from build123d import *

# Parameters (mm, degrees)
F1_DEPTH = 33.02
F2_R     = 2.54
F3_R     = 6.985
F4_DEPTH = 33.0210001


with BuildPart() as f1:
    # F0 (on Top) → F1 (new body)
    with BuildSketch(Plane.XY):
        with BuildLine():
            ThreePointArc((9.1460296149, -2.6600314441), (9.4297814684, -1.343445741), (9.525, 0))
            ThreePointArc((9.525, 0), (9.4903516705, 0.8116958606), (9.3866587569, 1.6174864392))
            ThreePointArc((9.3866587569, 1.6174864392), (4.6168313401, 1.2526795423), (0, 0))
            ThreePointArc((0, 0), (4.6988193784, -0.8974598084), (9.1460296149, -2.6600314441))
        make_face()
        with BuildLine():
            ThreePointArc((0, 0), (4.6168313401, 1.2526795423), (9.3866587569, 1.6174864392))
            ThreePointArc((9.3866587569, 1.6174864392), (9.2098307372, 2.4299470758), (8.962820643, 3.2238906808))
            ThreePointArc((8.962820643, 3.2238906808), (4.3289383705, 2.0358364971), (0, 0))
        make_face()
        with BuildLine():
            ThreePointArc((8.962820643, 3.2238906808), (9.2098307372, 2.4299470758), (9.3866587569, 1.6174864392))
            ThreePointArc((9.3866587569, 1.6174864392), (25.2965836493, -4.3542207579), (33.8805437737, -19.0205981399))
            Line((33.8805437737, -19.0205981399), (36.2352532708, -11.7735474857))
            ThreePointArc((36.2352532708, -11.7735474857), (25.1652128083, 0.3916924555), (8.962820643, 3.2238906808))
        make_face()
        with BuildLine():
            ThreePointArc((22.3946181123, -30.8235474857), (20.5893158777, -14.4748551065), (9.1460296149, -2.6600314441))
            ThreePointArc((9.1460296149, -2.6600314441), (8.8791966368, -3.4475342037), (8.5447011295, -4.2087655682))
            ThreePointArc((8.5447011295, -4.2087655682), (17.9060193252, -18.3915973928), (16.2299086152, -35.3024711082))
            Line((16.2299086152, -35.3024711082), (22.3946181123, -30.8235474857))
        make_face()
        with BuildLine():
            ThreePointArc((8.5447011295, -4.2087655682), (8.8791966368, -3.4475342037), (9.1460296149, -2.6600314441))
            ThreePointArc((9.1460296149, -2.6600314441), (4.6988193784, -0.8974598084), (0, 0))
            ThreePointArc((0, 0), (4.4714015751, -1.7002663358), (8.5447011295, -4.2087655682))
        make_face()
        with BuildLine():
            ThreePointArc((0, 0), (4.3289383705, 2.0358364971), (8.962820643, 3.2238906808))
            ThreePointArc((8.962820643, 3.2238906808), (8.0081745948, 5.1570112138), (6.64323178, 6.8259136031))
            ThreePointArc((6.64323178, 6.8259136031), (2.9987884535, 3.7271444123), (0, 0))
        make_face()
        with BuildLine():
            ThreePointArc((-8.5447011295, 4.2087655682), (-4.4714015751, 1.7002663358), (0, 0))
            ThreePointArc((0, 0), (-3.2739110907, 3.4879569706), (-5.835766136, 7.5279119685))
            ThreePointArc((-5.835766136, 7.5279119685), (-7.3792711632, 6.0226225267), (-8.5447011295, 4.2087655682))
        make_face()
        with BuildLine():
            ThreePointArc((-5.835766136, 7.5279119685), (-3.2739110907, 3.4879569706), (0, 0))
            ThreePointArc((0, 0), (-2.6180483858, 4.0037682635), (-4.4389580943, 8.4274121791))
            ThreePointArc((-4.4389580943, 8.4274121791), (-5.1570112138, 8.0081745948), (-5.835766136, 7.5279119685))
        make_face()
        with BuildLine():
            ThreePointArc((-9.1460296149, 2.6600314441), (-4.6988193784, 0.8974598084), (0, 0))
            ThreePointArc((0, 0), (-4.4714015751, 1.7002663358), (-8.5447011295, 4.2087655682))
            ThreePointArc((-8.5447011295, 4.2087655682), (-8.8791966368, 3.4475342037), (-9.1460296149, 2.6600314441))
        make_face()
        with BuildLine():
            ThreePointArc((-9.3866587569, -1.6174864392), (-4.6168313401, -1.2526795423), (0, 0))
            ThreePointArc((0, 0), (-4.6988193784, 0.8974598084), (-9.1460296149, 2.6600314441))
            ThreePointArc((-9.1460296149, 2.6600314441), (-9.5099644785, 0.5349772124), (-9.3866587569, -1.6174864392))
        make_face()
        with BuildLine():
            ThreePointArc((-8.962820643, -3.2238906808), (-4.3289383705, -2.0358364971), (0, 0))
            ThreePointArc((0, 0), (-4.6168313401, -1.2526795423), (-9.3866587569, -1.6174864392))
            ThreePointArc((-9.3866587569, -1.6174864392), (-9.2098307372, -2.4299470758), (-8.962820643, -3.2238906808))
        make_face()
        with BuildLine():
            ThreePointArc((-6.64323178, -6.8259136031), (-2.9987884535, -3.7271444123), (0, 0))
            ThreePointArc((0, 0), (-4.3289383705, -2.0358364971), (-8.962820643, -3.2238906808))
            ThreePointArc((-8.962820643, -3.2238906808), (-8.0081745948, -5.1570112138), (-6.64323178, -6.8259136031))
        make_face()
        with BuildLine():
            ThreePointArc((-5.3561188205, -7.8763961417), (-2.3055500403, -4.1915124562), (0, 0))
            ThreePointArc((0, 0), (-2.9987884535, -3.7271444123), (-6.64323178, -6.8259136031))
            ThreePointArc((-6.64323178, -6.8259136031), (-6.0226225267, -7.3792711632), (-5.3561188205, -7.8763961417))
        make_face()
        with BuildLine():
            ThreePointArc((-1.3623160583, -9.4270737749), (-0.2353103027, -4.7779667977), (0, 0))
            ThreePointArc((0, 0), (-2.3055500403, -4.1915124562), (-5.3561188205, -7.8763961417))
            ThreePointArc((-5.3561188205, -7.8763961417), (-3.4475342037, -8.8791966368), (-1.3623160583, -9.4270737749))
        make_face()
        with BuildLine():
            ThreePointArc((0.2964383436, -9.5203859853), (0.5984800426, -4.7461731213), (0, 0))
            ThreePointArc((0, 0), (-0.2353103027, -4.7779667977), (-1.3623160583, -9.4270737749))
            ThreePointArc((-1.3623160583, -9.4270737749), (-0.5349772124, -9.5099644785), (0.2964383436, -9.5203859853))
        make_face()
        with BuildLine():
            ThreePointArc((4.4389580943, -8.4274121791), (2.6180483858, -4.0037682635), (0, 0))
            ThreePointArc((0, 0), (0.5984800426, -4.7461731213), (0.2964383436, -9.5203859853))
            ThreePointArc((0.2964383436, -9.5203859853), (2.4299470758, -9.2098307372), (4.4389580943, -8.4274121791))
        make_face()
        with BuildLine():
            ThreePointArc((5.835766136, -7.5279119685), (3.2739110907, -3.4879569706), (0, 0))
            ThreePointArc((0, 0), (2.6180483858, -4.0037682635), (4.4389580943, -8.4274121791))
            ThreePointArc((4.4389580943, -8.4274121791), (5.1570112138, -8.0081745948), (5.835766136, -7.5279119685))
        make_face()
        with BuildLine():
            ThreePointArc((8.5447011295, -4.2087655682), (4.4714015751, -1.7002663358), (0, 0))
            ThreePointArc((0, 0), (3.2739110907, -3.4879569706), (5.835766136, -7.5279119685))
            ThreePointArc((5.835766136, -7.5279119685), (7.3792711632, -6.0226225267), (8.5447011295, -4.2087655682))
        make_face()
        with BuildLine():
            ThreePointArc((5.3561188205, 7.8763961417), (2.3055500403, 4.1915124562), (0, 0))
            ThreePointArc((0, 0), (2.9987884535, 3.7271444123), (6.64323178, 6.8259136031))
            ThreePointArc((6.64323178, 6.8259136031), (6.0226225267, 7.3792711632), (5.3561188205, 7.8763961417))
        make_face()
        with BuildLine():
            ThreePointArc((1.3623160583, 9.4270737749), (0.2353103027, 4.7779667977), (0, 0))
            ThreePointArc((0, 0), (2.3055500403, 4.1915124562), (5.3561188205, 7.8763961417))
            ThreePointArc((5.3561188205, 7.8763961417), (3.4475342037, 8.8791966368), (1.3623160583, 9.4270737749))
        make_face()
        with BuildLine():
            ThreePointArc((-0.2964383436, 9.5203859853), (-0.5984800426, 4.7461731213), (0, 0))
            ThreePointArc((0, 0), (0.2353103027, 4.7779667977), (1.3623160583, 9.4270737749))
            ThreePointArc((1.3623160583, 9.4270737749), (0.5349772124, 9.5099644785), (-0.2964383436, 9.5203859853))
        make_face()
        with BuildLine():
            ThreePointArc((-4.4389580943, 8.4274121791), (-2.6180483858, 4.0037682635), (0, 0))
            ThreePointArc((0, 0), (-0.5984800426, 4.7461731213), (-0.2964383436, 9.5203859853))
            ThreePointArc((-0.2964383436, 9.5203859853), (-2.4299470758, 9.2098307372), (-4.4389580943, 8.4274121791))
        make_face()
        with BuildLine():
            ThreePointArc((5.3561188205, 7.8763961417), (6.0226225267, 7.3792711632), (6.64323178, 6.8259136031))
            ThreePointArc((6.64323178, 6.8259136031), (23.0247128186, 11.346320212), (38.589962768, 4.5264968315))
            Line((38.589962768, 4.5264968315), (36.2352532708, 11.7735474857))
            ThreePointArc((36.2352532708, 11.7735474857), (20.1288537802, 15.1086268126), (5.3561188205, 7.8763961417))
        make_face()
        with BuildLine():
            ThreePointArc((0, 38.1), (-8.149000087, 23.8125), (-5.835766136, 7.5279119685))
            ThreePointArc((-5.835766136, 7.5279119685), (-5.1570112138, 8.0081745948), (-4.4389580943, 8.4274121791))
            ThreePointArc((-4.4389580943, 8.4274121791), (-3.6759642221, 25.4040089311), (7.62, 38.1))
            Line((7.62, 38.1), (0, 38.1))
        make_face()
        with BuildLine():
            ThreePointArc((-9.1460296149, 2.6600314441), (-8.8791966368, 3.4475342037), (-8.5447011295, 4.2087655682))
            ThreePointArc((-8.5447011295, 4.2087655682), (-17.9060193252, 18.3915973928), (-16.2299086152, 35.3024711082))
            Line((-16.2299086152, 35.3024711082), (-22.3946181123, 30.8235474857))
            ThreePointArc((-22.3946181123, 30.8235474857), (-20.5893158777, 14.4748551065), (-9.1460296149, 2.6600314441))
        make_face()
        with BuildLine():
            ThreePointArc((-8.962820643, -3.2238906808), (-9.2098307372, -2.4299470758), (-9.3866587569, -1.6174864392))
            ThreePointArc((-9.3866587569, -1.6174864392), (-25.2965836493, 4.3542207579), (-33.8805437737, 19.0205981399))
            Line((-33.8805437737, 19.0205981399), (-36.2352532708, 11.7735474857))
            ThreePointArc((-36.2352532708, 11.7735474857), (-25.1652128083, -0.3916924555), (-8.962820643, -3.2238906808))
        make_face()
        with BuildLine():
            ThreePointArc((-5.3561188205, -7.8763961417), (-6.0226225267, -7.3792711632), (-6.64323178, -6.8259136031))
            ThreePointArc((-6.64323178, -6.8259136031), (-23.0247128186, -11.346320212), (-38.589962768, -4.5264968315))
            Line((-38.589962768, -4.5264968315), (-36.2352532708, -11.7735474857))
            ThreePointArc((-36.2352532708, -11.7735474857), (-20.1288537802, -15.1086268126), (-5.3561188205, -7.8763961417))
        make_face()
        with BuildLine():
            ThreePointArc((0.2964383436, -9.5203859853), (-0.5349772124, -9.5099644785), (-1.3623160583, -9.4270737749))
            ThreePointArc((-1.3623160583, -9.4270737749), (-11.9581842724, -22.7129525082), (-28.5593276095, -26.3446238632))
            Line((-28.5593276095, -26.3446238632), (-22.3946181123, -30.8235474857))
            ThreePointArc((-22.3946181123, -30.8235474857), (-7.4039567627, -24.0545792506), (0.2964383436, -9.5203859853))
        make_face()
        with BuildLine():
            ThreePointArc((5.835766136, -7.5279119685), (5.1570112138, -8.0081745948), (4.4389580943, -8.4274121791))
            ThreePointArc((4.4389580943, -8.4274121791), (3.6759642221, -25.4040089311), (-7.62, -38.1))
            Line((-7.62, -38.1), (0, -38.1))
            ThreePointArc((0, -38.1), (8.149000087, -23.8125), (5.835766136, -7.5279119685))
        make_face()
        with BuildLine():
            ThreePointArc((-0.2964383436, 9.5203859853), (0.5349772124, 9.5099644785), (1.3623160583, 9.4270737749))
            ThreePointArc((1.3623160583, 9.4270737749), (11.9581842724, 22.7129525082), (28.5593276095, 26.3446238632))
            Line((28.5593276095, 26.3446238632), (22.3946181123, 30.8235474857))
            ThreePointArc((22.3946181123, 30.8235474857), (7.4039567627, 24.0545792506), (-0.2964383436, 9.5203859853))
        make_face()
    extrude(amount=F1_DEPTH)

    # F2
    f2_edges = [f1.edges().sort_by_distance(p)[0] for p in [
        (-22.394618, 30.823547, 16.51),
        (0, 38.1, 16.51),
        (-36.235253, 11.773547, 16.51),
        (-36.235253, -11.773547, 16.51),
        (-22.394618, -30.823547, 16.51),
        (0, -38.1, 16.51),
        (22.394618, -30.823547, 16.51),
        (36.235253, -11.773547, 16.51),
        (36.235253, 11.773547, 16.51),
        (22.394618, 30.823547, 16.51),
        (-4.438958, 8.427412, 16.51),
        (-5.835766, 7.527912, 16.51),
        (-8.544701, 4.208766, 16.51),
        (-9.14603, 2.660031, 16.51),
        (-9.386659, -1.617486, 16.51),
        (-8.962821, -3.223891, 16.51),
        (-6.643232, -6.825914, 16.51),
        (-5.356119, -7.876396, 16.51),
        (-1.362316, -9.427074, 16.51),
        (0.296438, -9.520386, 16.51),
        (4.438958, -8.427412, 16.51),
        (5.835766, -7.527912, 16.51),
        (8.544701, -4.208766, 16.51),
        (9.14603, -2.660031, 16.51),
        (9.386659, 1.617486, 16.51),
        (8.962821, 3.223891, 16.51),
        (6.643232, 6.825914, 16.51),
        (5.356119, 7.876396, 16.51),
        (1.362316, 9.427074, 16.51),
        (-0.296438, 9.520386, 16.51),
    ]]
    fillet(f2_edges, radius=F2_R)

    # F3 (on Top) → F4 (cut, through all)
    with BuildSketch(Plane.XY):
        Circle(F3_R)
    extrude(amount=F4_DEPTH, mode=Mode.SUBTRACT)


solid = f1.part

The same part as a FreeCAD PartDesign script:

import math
import FreeCAD as App
import Part
import Sketcher

V = App.Vector
Q = App.Units.Quantity


def edges_at(feature, points):
    """Names of the edges that pass closest to the given points."""
    edges = feature.Shape.Edges
    near = lambda p: min(range(len(edges)), key=lambda i: edges[i].distToShape(Part.Vertex(*p))[0])
    return sorted({f"Edge{near(p) + 1}" for p in points})

doc = App.newDocument("Part")
params = doc.addObject("Spreadsheet::Sheet", "Params")
for row, (alias, value) in enumerate([
    ("sketch1_radius", "1 in"),
    ("sketch1_width", "0.3 in"),
    ("sketch1_radius2", "0.375 in"),
    ("sketch1_length", "0.3 in"),
    ("pad1_length", "1.3 in"),
    ("fillet_radius", "0.1 in"),
    ("sketch2_diameter", "0.55 in"),
], start=1):
    params.set(f"A{row}", alias)
    params.set(f"B{row}", "=" + value)
    params.setAlias(f"B{row}", alias)

body = doc.addObject("PartDesign::Body", "Body")

sketch1 = doc.addObject("Sketcher::SketchObject", "Sketch")
body.addObject(sketch1)
sketch1.AttachmentSupport = (doc.XY_Plane, [""])
sketch1.MapMode = "FlatFace"
sketch1.addGeometry(Part.ArcOfCircle(Part.Circle(V(0, 0, 0), V(0, 0, 1), 9.5), math.radians(-16.22), math.radians(0)), False)
sketch1.addGeometry(Part.ArcOfCircle(Part.Circle(V(0, 0, 0), V(0, 0, 1), 9.5), math.radians(0), math.radians(9.78)), False)
sketch1.addGeometry(Part.ArcOfCircle(Part.Circle(V(8.9, -23.8, 0), V(0, 0, 1), 25.4), math.radians(11), math.radians(89)), False)
sketch1.addGeometry(Part.LineSegment(V(33.9, -19, 0), V(36.2, -11.8, 0)), False)
sketch1.addGeometry(Part.ArcOfCircle(Part.Circle(V(12.9, -21.9, 0), V(0, 0, 1), 25.4), math.radians(23), math.radians(99)), False)
sketch1.addGeometry(Part.ArcOfCircle(Part.Circle(V(0, 0, 0), V(0, 0, 1), 9.5), math.radians(20), math.radians(46)), False)
sketch1.addGeometry(Part.ArcOfCircle(Part.Circle(V(21.2, -14, 0), V(0, 0, 1), 25.4), math.radians(47), math.radians(125)), False)
sketch1.addGeometry(Part.LineSegment(V(38.6, 4.5, 0), V(36.2, 11.8, 0)), False)
sketch1.addGeometry(Part.ArcOfCircle(Part.Circle(V(23.3, -10.1, 0), V(0, 0, 1), 25.4), math.radians(59), math.radians(135)), False)
sketch1.addGeometry(Part.ArcOfCircle(Part.Circle(V(0, 0, 0), V(0, 0, 1), 9.5), math.radians(56), math.radians(82)), False)
sketch1.addGeometry(Part.ArcOfCircle(Part.Circle(V(25.4, 1.1, 0), V(0, 0, 1), 25.4), math.radians(83), math.radians(161)), False)
sketch1.addGeometry(Part.LineSegment(V(28.6, 26.3, 0), V(22.4, 30.8, 0)), False)
sketch1.addGeometry(Part.ArcOfCircle(Part.Circle(V(24.8, 5.5, 0), V(0, 0, 1), 25.4), math.radians(95), math.radians(171)), False)
sketch1.addGeometry(Part.ArcOfCircle(Part.Circle(V(0, 0, 0), V(0, 0, 1), 9.5), math.radians(92), math.radians(118)), False)
sketch1.addGeometry(Part.ArcOfCircle(Part.Circle(V(19.9, 15.8, 0), V(0, 0, 1), 25.4), math.radians(119), math.radians(197)), False)
sketch1.addGeometry(Part.LineSegment(V(7.6, 38.1, 0), V(0, 38.1, 0)), False)
sketch1.addGeometry(Part.ArcOfCircle(Part.Circle(V(16.8, 19.1, 0), V(0, 0, 1), 25.4), math.radians(131), math.radians(207)), False)
sketch1.addGeometry(Part.ArcOfCircle(Part.Circle(V(0, 0, 0), V(0, 0, 1), 9.5), math.radians(128), math.radians(154)), False)
sketch1.addGeometry(Part.ArcOfCircle(Part.Circle(V(6.8, 24.5, 0), V(0, 0, 1), 25.4), math.radians(155), math.radians(233)), False)
sketch1.addGeometry(Part.LineSegment(V(-16.2, 35.3, 0), V(-22.4, 30.8, 0)), False)
sketch1.addGeometry(Part.ArcOfCircle(Part.Circle(V(2.4, 25.3, 0), V(0, 0, 1), 25.4), math.radians(167), math.radians(243)), False)
sketch1.addGeometry(Part.ArcOfCircle(Part.Circle(V(0, 0, 0), V(0, 0, 1), 9.5), math.radians(164), math.radians(190)), False)
sketch1.addGeometry(Part.ArcOfCircle(Part.Circle(V(-8.9, 23.8, 0), V(0, 0, 1), 25.4), math.radians(-169), math.radians(-91)), False)
sketch1.addGeometry(Part.LineSegment(V(-33.9, 19, 0), V(-36.2, 11.8, 0)), False)
sketch1.addGeometry(Part.ArcOfCircle(Part.Circle(V(-12.9, 21.9, 0), V(0, 0, 1), 25.4), math.radians(-157), math.radians(-81)), False)
sketch1.addGeometry(Part.ArcOfCircle(Part.Circle(V(0, 0, 0), V(0, 0, 1), 9.5), math.radians(-160), math.radians(-134)), False)
sketch1.addGeometry(Part.ArcOfCircle(Part.Circle(V(-21.2, 14, 0), V(0, 0, 1), 25.4), math.radians(-133), math.radians(-55)), False)
sketch1.addGeometry(Part.LineSegment(V(-38.6, -4.5, 0), V(-36.2, -11.8, 0)), False)
sketch1.addGeometry(Part.ArcOfCircle(Part.Circle(V(-23.3, 10.1, 0), V(0, 0, 1), 25.4), math.radians(-121), math.radians(-45)), False)
sketch1.addGeometry(Part.ArcOfCircle(Part.Circle(V(0, 0, 0), V(0, 0, 1), 9.5), math.radians(-124), math.radians(-98)), False)
sketch1.addGeometry(Part.ArcOfCircle(Part.Circle(V(-25.4, -1.1, 0), V(0, 0, 1), 25.4), math.radians(-97), math.radians(-19)), False)
sketch1.addGeometry(Part.LineSegment(V(-28.6, -26.3, 0), V(-22.4, -30.8, 0)), False)
sketch1.addGeometry(Part.ArcOfCircle(Part.Circle(V(-24.8, -5.5, 0), V(0, 0, 1), 25.4), math.radians(-85), math.radians(-9)), False)
sketch1.addGeometry(Part.ArcOfCircle(Part.Circle(V(0, 0, 0), V(0, 0, 1), 9.5), math.radians(-88), math.radians(-62)), False)
sketch1.addGeometry(Part.ArcOfCircle(Part.Circle(V(-19.9, -15.8, 0), V(0, 0, 1), 25.4), math.radians(-61), math.radians(17)), False)
sketch1.addGeometry(Part.LineSegment(V(-7.6, -38.1, 0), V(0, -38.1, 0)), False)
sketch1.addGeometry(Part.ArcOfCircle(Part.Circle(V(-16.8, -19.1, 0), V(0, 0, 1), 25.4), math.radians(-49), math.radians(27)), False)
sketch1.addGeometry(Part.ArcOfCircle(Part.Circle(V(0, 0, 0), V(0, 0, 1), 9.5), math.radians(-52), math.radians(-26)), False)
sketch1.addGeometry(Part.ArcOfCircle(Part.Circle(V(-6.8, -24.5, 0), V(0, 0, 1), 25.4), math.radians(-25), math.radians(53)), False)
sketch1.addGeometry(Part.LineSegment(V(16.2, -35.3, 0), V(22.4, -30.8, 0)), False)
sketch1.addGeometry(Part.ArcOfCircle(Part.Circle(V(-2.4, -25.3, 0), V(0, 0, 1), 25.4), math.radians(-13), math.radians(63)), False)
sketch1.addConstraint(Sketcher.Constraint("Tangent", 0, 2, 1, 1))
sketch1.addConstraint(Sketcher.Constraint("Coincident", 1, 2, 2, 2))
sketch1.addConstraint(Sketcher.Constraint("Coincident", 2, 1, 3, 1))
sketch1.addConstraint(Sketcher.Constraint("Coincident", 3, 2, 4, 1))
sketch1.addConstraint(Sketcher.Constraint("Coincident", 4, 2, 5, 1))
sketch1.addConstraint(Sketcher.Constraint("Coincident", 5, 2, 6, 2))
sketch1.addConstraint(Sketcher.Constraint("Coincident", 6, 1, 7, 1))
sketch1.addConstraint(Sketcher.Constraint("Coincident", 7, 2, 8, 1))
sketch1.addConstraint(Sketcher.Constraint("Coincident", 8, 2, 9, 1))
sketch1.addConstraint(Sketcher.Constraint("Coincident", 9, 2, 10, 2))
sketch1.addConstraint(Sketcher.Constraint("Coincident", 10, 1, 11, 1))
sketch1.addConstraint(Sketcher.Constraint("Coincident", 11, 2, 12, 1))
sketch1.addConstraint(Sketcher.Constraint("Coincident", 12, 2, 13, 1))
sketch1.addConstraint(Sketcher.Constraint("Coincident", 13, 2, 14, 2))
sketch1.addConstraint(Sketcher.Constraint("Coincident", 14, 1, 15, 1))
sketch1.addConstraint(Sketcher.Constraint("Coincident", 15, 2, 16, 1))
sketch1.addConstraint(Sketcher.Constraint("Coincident", 16, 2, 17, 1))
sketch1.addConstraint(Sketcher.Constraint("Coincident", 17, 2, 18, 2))
sketch1.addConstraint(Sketcher.Constraint("Coincident", 18, 1, 19, 1))
sketch1.addConstraint(Sketcher.Constraint("Coincident", 19, 2, 20, 1))
sketch1.addConstraint(Sketcher.Constraint("Coincident", 20, 2, 21, 1))
sketch1.addConstraint(Sketcher.Constraint("Coincident", 21, 2, 22, 2))
sketch1.addConstraint(Sketcher.Constraint("Coincident", 22, 1, 23, 1))
sketch1.addConstraint(Sketcher.Constraint("Coincident", 23, 2, 24, 1))
sketch1.addConstraint(Sketcher.Constraint("Coincident", 24, 2, 25, 1))
sketch1.addConstraint(Sketcher.Constraint("Coincident", 25, 2, 26, 2))
sketch1.addConstraint(Sketcher.Constraint("Coincident", 26, 1, 27, 1))
sketch1.addConstraint(Sketcher.Constraint("Coincident", 27, 2, 28, 1))
sketch1.addConstraint(Sketcher.Constraint("Coincident", 28, 2, 29, 1))
sketch1.addConstraint(Sketcher.Constraint("Coincident", 29, 2, 30, 2))
sketch1.addConstraint(Sketcher.Constraint("Coincident", 30, 1, 31, 1))
sketch1.addConstraint(Sketcher.Constraint("Coincident", 31, 2, 32, 1))
sketch1.addConstraint(Sketcher.Constraint("Coincident", 32, 2, 33, 1))
sketch1.addConstraint(Sketcher.Constraint("Coincident", 33, 2, 34, 2))
sketch1.addConstraint(Sketcher.Constraint("Coincident", 34, 1, 35, 1))
sketch1.addConstraint(Sketcher.Constraint("Coincident", 35, 2, 36, 1))
sketch1.addConstraint(Sketcher.Constraint("Coincident", 36, 2, 37, 1))
sketch1.addConstraint(Sketcher.Constraint("Coincident", 37, 2, 38, 2))
sketch1.addConstraint(Sketcher.Constraint("Coincident", 38, 1, 39, 1))
sketch1.addConstraint(Sketcher.Constraint("Coincident", 39, 2, 40, 1))
sketch1.addConstraint(Sketcher.Constraint("Coincident", 40, 2, 0, 1))
sketch1.addConstraint(Sketcher.Constraint("Horizontal", 15))
sketch1.addConstraint(Sketcher.Constraint("Horizontal", 35))
sketch1.addConstraint(Sketcher.Constraint("Coincident", 0, 3, -1, 1))
sketch1.addConstraint(Sketcher.Constraint("Coincident", 5, 3, -1, 1))
sketch1.addConstraint(Sketcher.Constraint("Coincident", 9, 3, -1, 1))
sketch1.addConstraint(Sketcher.Constraint("Coincident", 13, 3, -1, 1))
sketch1.addConstraint(Sketcher.Constraint("Coincident", 17, 3, -1, 1))
sketch1.addConstraint(Sketcher.Constraint("Coincident", 21, 3, -1, 1))
sketch1.addConstraint(Sketcher.Constraint("Coincident", 25, 3, -1, 1))
sketch1.addConstraint(Sketcher.Constraint("Coincident", 29, 3, -1, 1))
sketch1.addConstraint(Sketcher.Constraint("Coincident", 33, 3, -1, 1))
sketch1.addConstraint(Sketcher.Constraint("Coincident", 37, 3, -1, 1))
sketch1.addConstraint(Sketcher.Constraint("Equal", 0, 1))
sketch1.addConstraint(Sketcher.Constraint("Equal", 2, 4))
sketch1.addConstraint(Sketcher.Constraint("Equal", 1, 5))
sketch1.addConstraint(Sketcher.Constraint("Equal", 4, 6))
sketch1.addConstraint(Sketcher.Constraint("Equal", 6, 8))
sketch1.addConstraint(Sketcher.Constraint("Equal", 5, 9))
sketch1.addConstraint(Sketcher.Constraint("Equal", 8, 10))
sketch1.addConstraint(Sketcher.Constraint("Equal", 10, 12))
sketch1.addConstraint(Sketcher.Constraint("Equal", 9, 13))
sketch1.addConstraint(Sketcher.Constraint("Equal", 12, 14))
sketch1.addConstraint(Sketcher.Constraint("Equal", 14, 16))
sketch1.addConstraint(Sketcher.Constraint("Equal", 13, 17))
sketch1.addConstraint(Sketcher.Constraint("Equal", 16, 18))
sketch1.addConstraint(Sketcher.Constraint("Equal", 18, 20))
sketch1.addConstraint(Sketcher.Constraint("Equal", 17, 21))
sketch1.addConstraint(Sketcher.Constraint("Equal", 20, 22))
sketch1.addConstraint(Sketcher.Constraint("Equal", 22, 24))
sketch1.addConstraint(Sketcher.Constraint("Equal", 21, 25))
sketch1.addConstraint(Sketcher.Constraint("Equal", 24, 26))
sketch1.addConstraint(Sketcher.Constraint("Equal", 26, 28))
sketch1.addConstraint(Sketcher.Constraint("Equal", 25, 29))
sketch1.addConstraint(Sketcher.Constraint("Equal", 28, 30))
sketch1.addConstraint(Sketcher.Constraint("Equal", 30, 32))
sketch1.addConstraint(Sketcher.Constraint("Equal", 29, 33))
sketch1.addConstraint(Sketcher.Constraint("Equal", 32, 34))
sketch1.addConstraint(Sketcher.Constraint("Equal", 34, 36))
sketch1.addConstraint(Sketcher.Constraint("Equal", 33, 37))
sketch1.addConstraint(Sketcher.Constraint("Equal", 36, 38))
sketch1.addConstraint(Sketcher.Constraint("Equal", 38, 40))
sketch1.addConstraint(Sketcher.Constraint("Symmetric", 2, 3, 22, 3, -1, 1))
sketch1.addConstraint(Sketcher.Constraint("Symmetric", 4, 3, 24, 3, -1, 1))
sketch1.addConstraint(Sketcher.Constraint("Symmetric", 6, 3, 26, 3, -1, 1))
sketch1.addConstraint(Sketcher.Constraint("Symmetric", 8, 3, 28, 3, -1, 1))
sketch1.addConstraint(Sketcher.Constraint("Symmetric", 10, 3, 30, 3, -1, 1))
sketch1.addConstraint(Sketcher.Constraint("Symmetric", 12, 3, 32, 3, -1, 1))
sketch1.addConstraint(Sketcher.Constraint("Symmetric", 14, 3, 34, 3, -1, 1))
sketch1.addConstraint(Sketcher.Constraint("Symmetric", 16, 3, 36, 3, -1, 1))
sketch1.addConstraint(Sketcher.Constraint("Symmetric", 18, 3, 38, 3, -1, 1))
sketch1.addConstraint(Sketcher.Constraint("Symmetric", 20, 3, 40, 3, -1, 1))
sketch1.addConstraint(Sketcher.Constraint("Symmetric", 11, 2, 19, 2, -2))
sketch1.addConstraint(Sketcher.Constraint("Symmetric", 7, 2, 23, 2, -2))
sketch1.addConstraint(Sketcher.Constraint("Symmetric", 3, 2, 27, 2, -2))
sketch1.addConstraint(Sketcher.Constraint("Symmetric", 31, 2, 39, 2, -2))
sketch1.addConstraint(Sketcher.Constraint("Symmetric", 15, 2, 35, 2, -1))
sketch1.addConstraint(Sketcher.Constraint("PointOnObject", 0, 2, -1))
sketch1.addConstraint(Sketcher.Constraint("Parallel", 3, 23))
sketch1.addConstraint(Sketcher.Constraint("Parallel", 7, 27))
sketch1.addConstraint(Sketcher.Constraint("Parallel", 11, 31))
sketch1.addConstraint(Sketcher.Constraint("Parallel", 19, 39))
sketch1.addConstraint(Sketcher.Constraint("Equal", 3, 7))
sketch1.addConstraint(Sketcher.Constraint("Equal", 7, 11))
sketch1.addConstraint(Sketcher.Constraint("Equal", 11, 19))
sketch1.addConstraint(Sketcher.Constraint("Radius", 2, Q("1 in")))
sketch1.addConstraint(Sketcher.Constraint("DistanceX", 15, 2, 15, 1, Q("0.3 in")))
sketch1.addConstraint(Sketcher.Constraint("Angle", 3, Q("72 deg")))
sketch1.addConstraint(Sketcher.Constraint("Angle", 7, Q("108 deg")))
sketch1.addConstraint(Sketcher.Constraint("Angle", 11, Q("144 deg")))
sketch1.addConstraint(Sketcher.Constraint("Angle", 19, Q("-144 deg")))
sketch1.addConstraint(Sketcher.Constraint("Radius", 0, Q("0.375 in")))
sketch1.addConstraint(Sketcher.Constraint("Distance", 3, Q("0.3 in")))
sketch1.addConstraint(Sketcher.Constraint("DistanceY", -1, 1, 14, 1, Q("1.5 in")))
sketch1.addConstraint(Sketcher.Constraint("DistanceY", -1, 1, 16, 3, Q("0.75 in")))
sketch1.addConstraint(Sketcher.Constraint("DistanceY", 2, 1, -1, 1, Q("19.020598 mm")))
sketch1.addConstraint(Sketcher.Constraint("DistanceX", 17, 2, -1, 1, Q("8.544701 mm")))
sketch1.addConstraint(Sketcher.Constraint("DistanceX", -1, 1, 2, 3, Q("8.930129 mm")))
sketch1.addConstraint(Sketcher.Constraint("DistanceY", 2, 3, -1, 1, Q("23.77841 mm")))
sketch1.addConstraint(Sketcher.Constraint("DistanceX", -1, 1, 4, 3, Q("12.92598 mm")))
sketch1.addConstraint(Sketcher.Constraint("DistanceY", 6, 3, -1, 1, Q("13.98814 mm")))
sketch1.addConstraint(Sketcher.Constraint("DistanceY", 8, 3, -1, 1, Q("10.091471 mm")))
sketch1.addConstraint(Sketcher.Constraint("DistanceX", -1, 1, 14, 3, Q("19.855051 mm")))
sketch1.addConstraint(Sketcher.Constraint("DistanceX", -1, 1, 11, 2, Q("22.394618 mm")))
sketch1.addConstraint(Sketcher.Constraint("DistanceX", 12, 2, -1, 1, Q("0.296438 mm")))
sketch1.addConstraint(Sketcher.Constraint("DistanceY", -1, 1, 18, 1, Q("35.302471 mm")))
sketch1.addConstraint(Sketcher.Constraint("DistanceX", 20, 2, -1, 1, Q("9.14603 mm")))
sketch1.addConstraint(Sketcher.Constraint("DistanceX", -1, 1, 10, 3, Q("25.374174 mm")))
sketch1.setExpression("Constraints[105]", "Params.sketch1_radius")
sketch1.setExpression("Constraints[106]", "Params.sketch1_width")
sketch1.setExpression("Constraints[111]", "Params.sketch1_radius2")
sketch1.setExpression("Constraints[112]", "Params.sketch1_length")
pad1 = doc.addObject("PartDesign::Pad", "Pad")
body.addObject(pad1)
pad1.Profile = sketch1
pad1.setExpression("Length", "Params.pad1_length")
doc.recompute()

fillet = doc.addObject("PartDesign::Fillet", "Fillet")
body.addObject(fillet)
fillet.Base = (pad1, edges_at(pad1, [
    (-22.395, 30.824, 16.51),
    (0, 38.1, 16.51),
    (-36.235, 11.774, 16.51),
    (-36.235, -11.774, 16.51),
    (-22.395, -30.824, 16.51),
    (0, -38.1, 16.51),
    (22.395, -30.824, 16.51),
    (36.235, -11.774, 16.51),
    (36.235, 11.774, 16.51),
    (22.395, 30.824, 16.51),
    (-4.439, 8.427, 16.51),
    (-5.836, 7.528, 16.51),
    (-8.545, 4.209, 16.51),
    (-9.146, 2.66, 16.51),
    (-9.387, -1.617, 16.51),
    (-8.963, -3.224, 16.51),
    (-6.643, -6.826, 16.51),
    (-5.356, -7.876, 16.51),
    (-1.362, -9.427, 16.51),
    (0.296, -9.52, 16.51),
    (4.439, -8.427, 16.51),
    (5.836, -7.528, 16.51),
    (8.545, -4.209, 16.51),
    (9.146, -2.66, 16.51),
    (9.387, 1.617, 16.51),
    (8.963, 3.224, 16.51),
    (6.643, 6.826, 16.51),
    (5.356, 7.876, 16.51),
    (1.362, 9.427, 16.51),
    (-0.296, 9.52, 16.51),
]))
fillet.setExpression("Radius", "Params.fillet_radius")

sketch2 = doc.addObject("Sketcher::SketchObject", "Sketch001")
body.addObject(sketch2)
sketch2.AttachmentSupport = (doc.XY_Plane, [""])
sketch2.MapMode = "FlatFace"
sketch2.addGeometry(Part.Circle(V(0, 0, 0), V(0, 0, 1), 7), False)
sketch2.addConstraint(Sketcher.Constraint("Coincident", 0, 3, -1, 1))
sketch2.addConstraint(Sketcher.Constraint("Diameter", 0, Q("0.55 in")))
sketch2.setExpression("Constraints[1]", "Params.sketch2_diameter")
pocket1 = doc.addObject("PartDesign::Pocket", "Pocket")
body.addObject(pocket1)
pocket1.Profile = sketch2
pocket1.Type = "ThroughAll"
pocket1.Reversed = True

doc.recompute()
